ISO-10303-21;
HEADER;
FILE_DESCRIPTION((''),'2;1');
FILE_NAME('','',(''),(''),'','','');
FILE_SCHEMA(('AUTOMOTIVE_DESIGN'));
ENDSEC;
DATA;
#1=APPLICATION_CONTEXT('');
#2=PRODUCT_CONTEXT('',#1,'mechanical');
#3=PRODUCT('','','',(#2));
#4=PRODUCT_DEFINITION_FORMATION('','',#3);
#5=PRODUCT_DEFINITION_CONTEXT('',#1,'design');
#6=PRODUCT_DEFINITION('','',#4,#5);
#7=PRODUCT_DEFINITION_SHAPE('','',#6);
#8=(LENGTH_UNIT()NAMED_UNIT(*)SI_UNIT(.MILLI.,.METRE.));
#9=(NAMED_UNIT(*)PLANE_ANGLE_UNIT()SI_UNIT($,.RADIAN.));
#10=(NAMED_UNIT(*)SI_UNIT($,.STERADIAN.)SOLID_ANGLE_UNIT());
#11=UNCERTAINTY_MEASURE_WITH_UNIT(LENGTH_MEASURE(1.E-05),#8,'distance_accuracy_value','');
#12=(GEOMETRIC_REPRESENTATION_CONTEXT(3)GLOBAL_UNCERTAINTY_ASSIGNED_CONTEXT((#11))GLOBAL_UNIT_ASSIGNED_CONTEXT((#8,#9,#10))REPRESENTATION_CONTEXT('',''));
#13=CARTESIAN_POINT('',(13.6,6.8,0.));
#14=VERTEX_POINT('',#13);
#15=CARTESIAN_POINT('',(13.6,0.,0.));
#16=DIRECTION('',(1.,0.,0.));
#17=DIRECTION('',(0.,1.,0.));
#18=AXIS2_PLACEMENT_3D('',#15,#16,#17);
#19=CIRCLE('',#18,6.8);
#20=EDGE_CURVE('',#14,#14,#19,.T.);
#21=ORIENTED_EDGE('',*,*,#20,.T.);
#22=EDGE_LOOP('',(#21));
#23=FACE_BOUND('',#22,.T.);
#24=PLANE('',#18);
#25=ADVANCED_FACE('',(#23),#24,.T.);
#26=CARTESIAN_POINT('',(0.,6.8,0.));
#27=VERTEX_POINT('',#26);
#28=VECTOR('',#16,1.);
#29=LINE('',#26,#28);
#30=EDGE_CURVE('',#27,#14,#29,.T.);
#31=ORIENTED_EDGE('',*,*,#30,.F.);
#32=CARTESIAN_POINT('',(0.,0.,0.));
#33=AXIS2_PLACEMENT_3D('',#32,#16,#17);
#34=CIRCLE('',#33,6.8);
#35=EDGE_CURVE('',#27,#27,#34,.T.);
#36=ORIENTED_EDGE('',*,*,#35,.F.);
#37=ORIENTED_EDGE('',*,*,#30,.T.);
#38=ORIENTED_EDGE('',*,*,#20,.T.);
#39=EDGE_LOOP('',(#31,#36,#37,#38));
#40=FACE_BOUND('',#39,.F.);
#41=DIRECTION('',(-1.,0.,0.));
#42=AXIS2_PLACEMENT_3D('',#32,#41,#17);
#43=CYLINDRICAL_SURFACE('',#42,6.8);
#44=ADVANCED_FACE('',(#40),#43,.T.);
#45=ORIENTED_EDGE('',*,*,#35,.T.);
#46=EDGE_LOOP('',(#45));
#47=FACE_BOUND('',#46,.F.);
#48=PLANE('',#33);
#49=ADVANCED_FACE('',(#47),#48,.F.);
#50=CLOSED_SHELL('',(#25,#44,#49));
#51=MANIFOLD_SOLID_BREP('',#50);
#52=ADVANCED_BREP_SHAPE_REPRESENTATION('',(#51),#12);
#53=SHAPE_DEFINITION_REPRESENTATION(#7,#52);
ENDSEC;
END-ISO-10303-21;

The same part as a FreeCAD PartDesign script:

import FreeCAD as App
import Part
import Sketcher

doc = App.newDocument("Part")
body = doc.addObject("PartDesign::Body", "Body")

# Sketch on YZ plane
sketch1 = body.newObject("Sketcher::SketchObject", "Sketch")
sketch1.AttachmentSupport = (doc.getObject("YZ_Plane"), [""])
sketch1.MapMode = "FlatFace"
sketch1.addGeometry(Part.Circle(App.Vector(0, 0, 0), App.Vector(0, 0, 1), 7), False)
sketch1.addConstraint([
    Sketcher.Constraint("Coincident", 0, 3, -1, 1),
    Sketcher.Constraint("Diameter", 0, 13.6),
])
pad1 = body.newObject("PartDesign::Pad", "Pad")
pad1.Profile = sketch1
pad1.Length = 13.6

doc.recompute()
